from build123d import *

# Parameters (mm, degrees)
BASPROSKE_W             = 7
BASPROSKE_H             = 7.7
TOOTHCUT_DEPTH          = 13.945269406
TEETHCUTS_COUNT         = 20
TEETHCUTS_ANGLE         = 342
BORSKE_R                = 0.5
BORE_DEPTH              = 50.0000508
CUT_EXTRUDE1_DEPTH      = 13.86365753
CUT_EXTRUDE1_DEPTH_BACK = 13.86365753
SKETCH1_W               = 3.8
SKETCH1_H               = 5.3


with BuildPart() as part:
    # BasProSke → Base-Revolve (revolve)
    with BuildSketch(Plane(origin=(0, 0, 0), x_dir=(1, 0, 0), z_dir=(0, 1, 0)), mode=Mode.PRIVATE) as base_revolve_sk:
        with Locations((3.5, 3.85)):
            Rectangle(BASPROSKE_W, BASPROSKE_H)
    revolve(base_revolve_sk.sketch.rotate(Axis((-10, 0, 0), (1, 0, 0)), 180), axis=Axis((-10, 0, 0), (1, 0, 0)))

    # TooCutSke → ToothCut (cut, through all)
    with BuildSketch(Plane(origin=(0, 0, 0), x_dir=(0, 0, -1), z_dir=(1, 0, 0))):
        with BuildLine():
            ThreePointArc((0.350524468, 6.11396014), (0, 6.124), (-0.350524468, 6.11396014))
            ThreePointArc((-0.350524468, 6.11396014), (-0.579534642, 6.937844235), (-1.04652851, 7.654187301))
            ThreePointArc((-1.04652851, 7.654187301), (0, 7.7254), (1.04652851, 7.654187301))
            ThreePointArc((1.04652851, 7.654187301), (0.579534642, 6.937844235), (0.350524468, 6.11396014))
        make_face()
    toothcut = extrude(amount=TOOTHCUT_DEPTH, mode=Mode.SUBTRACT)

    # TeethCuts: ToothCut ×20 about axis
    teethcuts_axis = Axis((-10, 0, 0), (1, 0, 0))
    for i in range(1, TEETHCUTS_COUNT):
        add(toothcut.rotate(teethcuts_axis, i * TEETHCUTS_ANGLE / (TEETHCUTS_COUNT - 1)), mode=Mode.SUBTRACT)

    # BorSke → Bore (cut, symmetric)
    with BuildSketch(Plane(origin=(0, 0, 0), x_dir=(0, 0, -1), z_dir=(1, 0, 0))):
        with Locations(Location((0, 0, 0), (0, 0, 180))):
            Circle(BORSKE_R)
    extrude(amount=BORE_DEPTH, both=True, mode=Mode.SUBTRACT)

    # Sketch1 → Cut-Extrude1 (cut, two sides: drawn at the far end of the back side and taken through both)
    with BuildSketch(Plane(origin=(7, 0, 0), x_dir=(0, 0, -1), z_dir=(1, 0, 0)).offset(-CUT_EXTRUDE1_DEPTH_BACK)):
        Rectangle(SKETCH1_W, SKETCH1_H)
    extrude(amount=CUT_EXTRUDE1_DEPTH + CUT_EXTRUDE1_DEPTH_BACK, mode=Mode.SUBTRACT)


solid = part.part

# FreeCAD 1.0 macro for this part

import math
import FreeCAD as App
import Part
import Sketcher


def add_polygon(sketch, points):
    """Adds a closed chain of lines whose ends are joined by coincident constraints."""
    first, n = sketch.GeometryCount, len(points)
    for a, b in zip(points, points[1:] + points[:1]):
        sketch.addGeometry(Part.LineSegment(App.Vector(*a, 0), App.Vector(*b, 0)), False)
    for i in range(n):
        sketch.addConstraint(Sketcher.Constraint("Coincident", first + i, 2, first + (i + 1) % n, 1))

doc = App.newDocument("Part")
body = doc.addObject("PartDesign::Body", "Body")

# Sketch on XZ plane
sketch1 = body.newObject("Sketcher::SketchObject", "Sketch")
sketch1.AttachmentSupport = (doc.getObject("XZ_Plane"), [""])
sketch1.MapMode = "FlatFace"
add_polygon(sketch1, [(0, -8), (0, 0), (7, 0), (7, -8)])  # lines 0-3
sketch1.addConstraint(Sketcher.Constraint("Vertical", 0))
sketch1.addConstraint(Sketcher.Constraint("Horizontal", 1))
sketch1.addConstraint(Sketcher.Constraint("Vertical", 2))
sketch1.addConstraint(Sketcher.Constraint("Horizontal", 3))
sketch1.addConstraint(Sketcher.Constraint("Coincident", 0, 2, -1, 1))
sketch1.addConstraint(Sketcher.Constraint("DistanceX", 1, 1, 1, 2, 7.0))
sketch1.addConstraint(Sketcher.Constraint("DistanceY", 0, 1, 0, 2, 7.7))
revolution = body.newObject("PartDesign::Revolution", "Revolution")
revolution.Profile = sketch1
revolution.ReferenceAxis = (sketch1, ["H_Axis"])
revolution.Angle = 360

# Sketch on YZ plane
sketch2 = body.newObject("Sketcher::SketchObject", "Sketch001")
sketch2.AttachmentSupport = (doc.getObject("YZ_Plane"), [""])
sketch2.MapMode = "FlatFace"
sketch2.addGeometry(Part.ArcOfCircle(Part.Circle(App.Vector(0, 0, 0), App.Vector(0, 0, 1), 6.1), math.radians(-3.28), math.radians(3.28)), False)
sketch2.addGeometry(Part.ArcOfCircle(Part.Circle(App.Vector(5.8, -3.1, 0), App.Vector(0, 0, 1), 2.8), math.radians(48), math.radians(83)), False)
sketch2.addGeometry(Part.ArcOfCircle(Part.Circle(App.Vector(0, 0, 0), App.Vector(0, 0, 1), 7.7), math.radians(-7.79), math.radians(7.79)), False)
sketch2.addGeometry(Part.ArcOfCircle(Part.Circle(App.Vector(5.8, 3.1, 0), App.Vector(0, 0, 1), 2.8), math.radians(-83), math.radians(-48)), False)
sketch2.addConstraint(Sketcher.Constraint("Coincident", 0, 1, 1, 2))
sketch2.addConstraint(Sketcher.Constraint("Coincident", 1, 1, 2, 1))
sketch2.addConstraint(Sketcher.Constraint("Coincident", 2, 2, 3, 2))
sketch2.addConstraint(Sketcher.Constraint("Coincident", 3, 1, 0, 2))
sketch2.addConstraint(Sketcher.Constraint("Coincident", 0, 3, -1, 1))
sketch2.addConstraint(Sketcher.Constraint("Coincident", 2, 3, -1, 1))
sketch2.addConstraint(Sketcher.Constraint("Equal", 1, 3))
sketch2.addConstraint(Sketcher.Constraint("Symmetric", 1, 3, 3, 3, -1))
sketch2.addConstraint(Sketcher.Constraint("Radius", 1, 2.8))
sketch2.addConstraint(Sketcher.Constraint("Radius", 0, 6.124))
sketch2.addConstraint(Sketcher.Constraint("Radius", 2, 7.7254))
sketch2.addConstraint(Sketcher.Constraint("DistanceX", -1, 1, 0, 1, 6.11396))
sketch2.addConstraint(Sketcher.Constraint("DistanceY", 1, 1, -1, 1, 1.046529))
pocket1 = body.newObject("PartDesign::Pocket", "Pocket")
pocket1.Profile = sketch2
pocket1.Type = "ThroughAll"
pocket1.Reversed = True
doc.recompute()

polarpattern = body.newObject("PartDesign::PolarPattern", "PolarPattern")
polarpattern.Originals = [pocket1]
polarpattern.Axis = (doc.getObject("X_Axis"), [""])
polarpattern.Angle = 360
polarpattern.Occurrences = 20
body.Tip = polarpattern

# Sketch on YZ plane
sketch3 = body.newObject("Sketcher::SketchObject", "Sketch002")
sketch3.AttachmentSupport = (doc.getObject("YZ_Plane"), [""])
sketch3.MapMode = "FlatFace"
sketch3.addGeometry(Part.Circle(App.Vector(0, 0, 0), App.Vector(0, 0, 1), 0.5), False)
sketch3.addConstraint(Sketcher.Constraint("Coincident", 0, 3, -1, 1))
sketch3.addConstraint(Sketcher.Constraint("Diameter", 0, 1.0))
pocket2 = body.newObject("PartDesign::Pocket", "Pocket001")
pocket2.Profile = sketch3
pocket2.Length = 100.000102
pocket2.Midplane = True

# Sketch on YZ plane
sketch4 = body.newObject("Sketcher::SketchObject", "Sketch003")
sketch4.AttachmentSupport = (doc.getObject("YZ_Plane"), [""])
sketch4.MapMode = "FlatFace"
sketch4.AttachmentOffset = App.Placement(App.Vector(0, 0, 7), App.Rotation())
add_polygon(sketch4, [(2.6, 1.9), (-2.6, 1.9), (-2.6, -1.9), (2.6, -1.9)])  # lines 0-3
sketch4.addConstraint(Sketcher.Constraint("Horizontal", 0))
sketch4.addConstraint(Sketcher.Constraint("Vertical", 1))
sketch4.addConstraint(Sketcher.Constraint("Horizontal", 2))
sketch4.addConstraint(Sketcher.Constraint("Vertical", 3))
sketch4.addConstraint(Sketcher.Constraint("Symmetric", 0, 2, 2, 2, -1, 1))
sketch4.addConstraint(Sketcher.Constraint("DistanceX", 0, 2, 0, 1, 5.3))
sketch4.addConstraint(Sketcher.Constraint("DistanceY", 1, 2, 1, 1, 3.8))
pocket3 = body.newObject("PartDesign::Pocket", "Pocket002")
pocket3.Profile = sketch4
pocket3.Type = "ThroughAll"
pocket3.Midplane = True

doc.recompute()
